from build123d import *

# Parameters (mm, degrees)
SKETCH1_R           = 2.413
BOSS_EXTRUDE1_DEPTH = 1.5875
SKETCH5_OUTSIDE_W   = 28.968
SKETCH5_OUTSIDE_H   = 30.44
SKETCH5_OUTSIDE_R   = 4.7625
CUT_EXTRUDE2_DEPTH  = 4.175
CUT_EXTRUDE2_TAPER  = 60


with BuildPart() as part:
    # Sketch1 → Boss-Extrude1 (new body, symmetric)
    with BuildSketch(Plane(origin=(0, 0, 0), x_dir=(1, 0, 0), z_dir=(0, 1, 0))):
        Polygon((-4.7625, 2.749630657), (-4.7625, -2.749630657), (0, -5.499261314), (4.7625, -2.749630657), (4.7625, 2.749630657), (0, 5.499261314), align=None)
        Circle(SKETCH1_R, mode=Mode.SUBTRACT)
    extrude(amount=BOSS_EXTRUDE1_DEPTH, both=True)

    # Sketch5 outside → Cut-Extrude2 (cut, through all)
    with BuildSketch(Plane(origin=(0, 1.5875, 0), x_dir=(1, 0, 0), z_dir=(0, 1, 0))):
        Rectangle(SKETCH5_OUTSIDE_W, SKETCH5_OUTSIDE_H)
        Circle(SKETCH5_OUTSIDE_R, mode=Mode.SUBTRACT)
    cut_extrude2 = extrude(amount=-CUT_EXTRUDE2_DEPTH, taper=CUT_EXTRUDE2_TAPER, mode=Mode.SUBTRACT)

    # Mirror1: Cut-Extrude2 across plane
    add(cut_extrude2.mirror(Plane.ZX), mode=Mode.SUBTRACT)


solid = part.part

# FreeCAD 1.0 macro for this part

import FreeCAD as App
import Part
import Sketcher

V = App.Vector
Q = App.Units.Quantity

doc = App.newDocument("Part")
params = doc.addObject("Spreadsheet::Sheet", "Params")
for row, (alias, value) in enumerate([
    ("sketch1_diameter", "0.19 in"),
    ("pad1_length", "0.125 in"),
    ("sketch2_diameter", "0.375 in"),
    ("pocket1_length", "4.175 mm"),
    ("pocket1_taper", "60 deg"),
], start=1):
    params.set(f"A{row}", alias)
    params.set(f"B{row}", "=" + value)
    params.setAlias(f"B{row}", alias)

body = doc.addObject("PartDesign::Body", "Body")

sketch1 = body.newObject("Sketcher::SketchObject", "Sketch")
sketch1.AttachmentSupport = (doc.getObject("XZ_Plane"), [""])
sketch1.MapMode = "FlatFace"
sketch1.addGeometry([
    Part.LineSegment(V(-4.8, -2.7, 0), V(-4.8, 2.7, 0)),
    Part.LineSegment(V(-4.8, 2.7, 0), V(0, 5.5, 0)),
    Part.LineSegment(V(0, 5.5, 0), V(4.8, 2.7, 0)),
    Part.LineSegment(V(4.8, 2.7, 0), V(4.8, -2.7, 0)),
    Part.LineSegment(V(4.8, -2.7, 0), V(0, -5.5, 0)),
    Part.LineSegment(V(0, -5.5, 0), V(-4.8, -2.7, 0)),
    Part.Circle(V(0, 0, 0), V(0, 0, 1), 2.4),
], False)
sketch1.addConstraint([
    Sketcher.Constraint("Coincident", 0, 2, 1, 1),
    Sketcher.Constraint("Coincident", 1, 2, 2, 1),
    Sketcher.Constraint("Coincident", 2, 2, 3, 1),
    Sketcher.Constraint("Coincident", 3, 2, 4, 1),
    Sketcher.Constraint("Coincident", 4, 2, 5, 1),
    Sketcher.Constraint("Coincident", 5, 2, 0, 1),
    Sketcher.Constraint("Vertical", 0),
    Sketcher.Constraint("Vertical", 3),
    Sketcher.Constraint("Coincident", 6, 3, -1, 1),
    Sketcher.Constraint("Symmetric", 0, 2, 3, 2, -1, 1),
    Sketcher.Constraint("Symmetric", 1, 2, 4, 2, -1, 1),
    Sketcher.Constraint("PointOnObject", 1, 2, -2),
    Sketcher.Constraint("Parallel", 2, 5),
    Sketcher.Constraint("Horizontal", 0, 2, 2, 2),
    Sketcher.Constraint("Diameter", 6, Q("0.19 in")),
    Sketcher.Constraint("Angle", 1, Q("30 deg")),
    Sketcher.Constraint("DistanceX", 0, 2, -1, 1, Q("0.1875 in")),
    Sketcher.Constraint("DistanceY", 0, 1, 0, 2, 5.499261),
])
sketch1.setExpression("Constraints[14]", "Params.sketch1_diameter")
pad1 = body.newObject("PartDesign::Pad", "Pad")
pad1.Profile = sketch1
pad1.setExpression("Length", "Params.pad1_length")
pad1.Midplane = True

sketch2 = body.newObject("Sketcher::SketchObject", "Sketch001")
sketch2.AttachmentSupport = (doc.getObject("XZ_Plane"), [""])
sketch2.MapMode = "FlatFace"
sketch2.AttachmentOffset = App.Placement(V(0, 0, -0.0625 * 25.4), App.Rotation())
sketch2.addGeometry([
    Part.LineSegment(V(-14.5, -15.2, 0), V(-14.5, 15.2, 0)),
    Part.LineSegment(V(-14.5, 15.2, 0), V(14.5, 15.2, 0)),
    Part.LineSegment(V(14.5, 15.2, 0), V(14.5, -15.2, 0)),
    Part.LineSegment(V(14.5, -15.2, 0), V(-14.5, -15.2, 0)),
    Part.Circle(V(0, 0, 0), V(0, 0, 1), 4.8),
], False)
sketch2.addConstraint([
    Sketcher.Constraint("Coincident", 0, 2, 1, 1),
    Sketcher.Constraint("Coincident", 1, 2, 2, 1),
    Sketcher.Constraint("Coincident", 2, 2, 3, 1),
    Sketcher.Constraint("Coincident", 3, 2, 0, 1),
    Sketcher.Constraint("Vertical", 0),
    Sketcher.Constraint("Horizontal", 1),
    Sketcher.Constraint("Vertical", 2),
    Sketcher.Constraint("Horizontal", 3),
    Sketcher.Constraint("Coincident", 4, 3, -1, 1),
    Sketcher.Constraint("Symmetric", 0, 2, 2, 2, -1, 1),
    Sketcher.Constraint("Diameter", 4, Q("0.375 in")),
    Sketcher.Constraint("DistanceX", 1, 1, 1, 2, 28.968),
    Sketcher.Constraint("DistanceY", 0, 1, 0, 2, 30.44),
])
sketch2.setExpression("Constraints[10]", "Params.sketch2_diameter")
pocket1 = body.newObject("PartDesign::Pocket", "Pocket")
pocket1.Profile = sketch2
pocket1.setExpression("Length", "Params.pocket1_length")
pocket1.Reversed = True
pocket1.setExpression("TaperAngle", "Params.pocket1_taper")
doc.recompute()

mirrored = body.newObject("PartDesign::Mirrored", "Mirrored")
mirrored.Originals = [pocket1]
mirrored.MirrorPlane = (doc.getObject("XZ_Plane"), [""])
body.Tip = mirrored

doc.recompute()
